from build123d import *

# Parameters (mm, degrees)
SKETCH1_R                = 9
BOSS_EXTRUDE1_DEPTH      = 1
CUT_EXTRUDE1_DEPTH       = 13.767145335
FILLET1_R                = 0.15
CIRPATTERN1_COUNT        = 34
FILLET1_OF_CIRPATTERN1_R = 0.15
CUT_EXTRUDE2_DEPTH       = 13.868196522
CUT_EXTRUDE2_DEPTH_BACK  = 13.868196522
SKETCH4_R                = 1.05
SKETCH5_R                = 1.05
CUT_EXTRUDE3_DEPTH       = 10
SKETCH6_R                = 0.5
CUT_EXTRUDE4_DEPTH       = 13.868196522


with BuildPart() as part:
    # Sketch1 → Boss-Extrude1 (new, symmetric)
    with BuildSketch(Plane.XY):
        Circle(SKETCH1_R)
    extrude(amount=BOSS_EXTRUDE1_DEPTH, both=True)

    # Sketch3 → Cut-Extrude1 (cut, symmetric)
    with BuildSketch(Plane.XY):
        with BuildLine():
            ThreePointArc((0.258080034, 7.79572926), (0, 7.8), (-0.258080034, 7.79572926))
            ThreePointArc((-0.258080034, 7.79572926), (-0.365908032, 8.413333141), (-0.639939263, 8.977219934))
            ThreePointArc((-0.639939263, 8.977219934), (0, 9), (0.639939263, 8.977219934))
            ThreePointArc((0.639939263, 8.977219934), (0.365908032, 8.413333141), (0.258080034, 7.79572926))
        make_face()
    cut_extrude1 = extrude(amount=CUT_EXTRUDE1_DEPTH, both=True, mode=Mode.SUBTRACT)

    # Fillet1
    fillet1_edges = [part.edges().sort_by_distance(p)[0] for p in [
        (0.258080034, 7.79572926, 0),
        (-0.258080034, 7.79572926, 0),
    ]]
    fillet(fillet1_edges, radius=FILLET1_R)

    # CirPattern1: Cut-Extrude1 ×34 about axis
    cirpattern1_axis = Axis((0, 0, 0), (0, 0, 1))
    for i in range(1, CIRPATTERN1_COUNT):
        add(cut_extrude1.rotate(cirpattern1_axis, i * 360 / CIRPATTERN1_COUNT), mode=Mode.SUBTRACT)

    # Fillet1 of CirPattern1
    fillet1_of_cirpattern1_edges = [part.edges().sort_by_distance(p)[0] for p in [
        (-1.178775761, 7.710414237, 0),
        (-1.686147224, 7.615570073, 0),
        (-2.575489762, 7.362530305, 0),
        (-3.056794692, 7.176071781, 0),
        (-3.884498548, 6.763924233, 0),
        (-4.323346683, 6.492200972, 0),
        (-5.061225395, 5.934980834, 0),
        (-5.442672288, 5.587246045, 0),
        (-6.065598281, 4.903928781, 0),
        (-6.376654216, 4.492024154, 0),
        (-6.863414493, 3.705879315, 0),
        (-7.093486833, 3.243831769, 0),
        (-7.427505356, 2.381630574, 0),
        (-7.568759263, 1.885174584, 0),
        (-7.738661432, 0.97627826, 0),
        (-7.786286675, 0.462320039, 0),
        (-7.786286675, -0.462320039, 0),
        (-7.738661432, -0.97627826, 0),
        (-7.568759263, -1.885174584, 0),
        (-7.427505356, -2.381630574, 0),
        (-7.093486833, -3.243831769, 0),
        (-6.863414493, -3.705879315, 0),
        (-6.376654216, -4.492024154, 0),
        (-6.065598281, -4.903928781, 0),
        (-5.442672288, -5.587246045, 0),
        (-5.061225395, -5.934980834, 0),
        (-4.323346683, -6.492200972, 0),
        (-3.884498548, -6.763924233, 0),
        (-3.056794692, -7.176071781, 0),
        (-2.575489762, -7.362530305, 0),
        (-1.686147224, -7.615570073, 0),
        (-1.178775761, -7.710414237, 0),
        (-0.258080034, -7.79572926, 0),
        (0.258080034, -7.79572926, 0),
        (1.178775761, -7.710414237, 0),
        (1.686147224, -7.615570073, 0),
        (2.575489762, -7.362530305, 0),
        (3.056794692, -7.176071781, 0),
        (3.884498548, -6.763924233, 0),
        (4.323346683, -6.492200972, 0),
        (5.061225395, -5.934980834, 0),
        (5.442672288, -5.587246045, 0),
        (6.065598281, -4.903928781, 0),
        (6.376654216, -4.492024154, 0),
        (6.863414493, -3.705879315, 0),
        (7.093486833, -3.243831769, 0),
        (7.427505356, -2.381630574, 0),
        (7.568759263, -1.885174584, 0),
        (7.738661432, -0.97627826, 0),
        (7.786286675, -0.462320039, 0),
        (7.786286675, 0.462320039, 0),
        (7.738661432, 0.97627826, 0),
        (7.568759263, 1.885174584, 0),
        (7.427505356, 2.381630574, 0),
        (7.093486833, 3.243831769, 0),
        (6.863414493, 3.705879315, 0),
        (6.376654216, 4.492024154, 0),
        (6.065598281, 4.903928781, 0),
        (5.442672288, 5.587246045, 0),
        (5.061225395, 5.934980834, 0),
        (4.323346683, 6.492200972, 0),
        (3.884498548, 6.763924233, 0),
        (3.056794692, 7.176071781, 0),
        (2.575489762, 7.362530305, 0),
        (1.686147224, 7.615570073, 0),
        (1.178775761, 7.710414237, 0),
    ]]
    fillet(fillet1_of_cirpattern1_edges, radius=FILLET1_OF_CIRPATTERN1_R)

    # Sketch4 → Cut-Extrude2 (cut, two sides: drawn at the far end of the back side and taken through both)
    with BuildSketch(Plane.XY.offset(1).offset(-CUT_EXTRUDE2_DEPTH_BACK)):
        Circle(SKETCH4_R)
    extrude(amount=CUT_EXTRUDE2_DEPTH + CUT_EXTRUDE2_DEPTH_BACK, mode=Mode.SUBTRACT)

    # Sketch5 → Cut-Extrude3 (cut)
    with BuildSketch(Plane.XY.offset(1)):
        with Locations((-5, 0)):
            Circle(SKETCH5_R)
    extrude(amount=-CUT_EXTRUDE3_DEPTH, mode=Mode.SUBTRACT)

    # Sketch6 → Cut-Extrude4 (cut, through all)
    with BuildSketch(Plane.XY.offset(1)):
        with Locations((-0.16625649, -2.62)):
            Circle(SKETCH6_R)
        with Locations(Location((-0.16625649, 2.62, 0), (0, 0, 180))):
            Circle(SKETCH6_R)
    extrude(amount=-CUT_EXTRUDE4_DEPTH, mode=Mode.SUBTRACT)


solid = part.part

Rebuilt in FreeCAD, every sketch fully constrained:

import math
import FreeCAD as App
import Part
import Sketcher

V = App.Vector


def edges_at(feature, points):
    """Names of the edges that pass closest to the given points."""
    edges = feature.Shape.Edges
    near = lambda p: min(range(len(edges)), key=lambda i: edges[i].distToShape(Part.Vertex(*p))[0])
    return sorted({f"Edge{near(p) + 1}" for p in points})

doc = App.newDocument("Part")
body = doc.addObject("PartDesign::Body", "Body")

sketch1 = body.newObject("Sketcher::SketchObject", "Sketch")
sketch1.AttachmentSupport = (doc.getObject("XY_Plane"), [""])
sketch1.MapMode = "FlatFace"
sketch1.addGeometry(Part.Circle(V(0, 0, 0), V(0, 0, 1), 9), False)
sketch1.addConstraint([
    Sketcher.Constraint("Coincident", 0, 3, -1, 1),
    Sketcher.Constraint("Diameter", 0, 18.0),
])
pad1 = body.newObject("PartDesign::Pad", "Pad")
pad1.Profile = sketch1
pad1.Length = 2
pad1.Midplane = True

sketch2 = body.newObject("Sketcher::SketchObject", "Sketch001")
sketch2.AttachmentSupport = (doc.getObject("XY_Plane"), [""])
sketch2.MapMode = "FlatFace"
sketch2.addGeometry([
    Part.ArcOfCircle(Part.Circle(V(0, 0, 0), V(0, 0, 1), 7.8), math.radians(88.1), math.radians(91.9)),
    Part.ArcOfCircle(Part.Circle(V(2.5, 7.7, 0), V(0, 0, 1), 2.3), math.radians(146), math.radians(178)),
    Part.ArcOfCircle(Part.Circle(V(0, 0, 0), V(0, 0, 1), 9), math.radians(85.92), math.radians(94.08)),
    Part.ArcOfCircle(Part.Circle(V(-2.5, 7.7, 0), V(0, 0, 1), 2.3), math.radians(2), math.radians(34)),
], False)
sketch2.addConstraint([
    Sketcher.Constraint("Coincident", 0, 1, 1, 2),
    Sketcher.Constraint("Coincident", 1, 1, 2, 1),
    Sketcher.Constraint("Coincident", 2, 2, 3, 2),
    Sketcher.Constraint("Coincident", 3, 1, 0, 2),
    Sketcher.Constraint("Coincident", 0, 3, -1, 1),
    Sketcher.Constraint("Coincident", 2, 3, -1, 1),
    Sketcher.Constraint("Equal", 1, 3),
    Sketcher.Constraint("Symmetric", 1, 3, 3, 3, -2),
    Sketcher.Constraint("Radius", 2, 9.0),
    Sketcher.Constraint("Radius", 0, 7.8),
    Sketcher.Constraint("Radius", 1, 2.25033),
    Sketcher.Constraint("DistanceX", -1, 1, 0, 1, 0.25808),
    Sketcher.Constraint("DistanceX", -1, 1, 1, 1, 0.639939),
])
pocket1 = body.newObject("PartDesign::Pocket", "Pocket")
pocket1.Profile = sketch2
pocket1.Length = 27.534291
pocket1.Midplane = True
doc.recompute()

fillet = body.newObject("PartDesign::Fillet", "Fillet")
fillet.Base = (pocket1, edges_at(pocket1, [(0.258, 7.796, 0), (-0.258, 7.796, 0)]))
fillet.Radius = 0.15
doc.recompute()

polarpattern = body.newObject("PartDesign::PolarPattern", "PolarPattern")
polarpattern.Originals = [pocket1]
polarpattern.Axis = (doc.getObject("Z_Axis"), [""])
polarpattern.Angle = 360
polarpattern.Occurrences = 34
body.Tip = polarpattern
doc.recompute()

fillet2 = body.newObject("PartDesign::Fillet", "Fillet001")
fillet2.Base = (polarpattern, edges_at(polarpattern, [
    (-1.179, 7.71, 0),
    (-1.686, 7.616, 0),
    (-2.575, 7.363, 0),
    (-3.057, 7.176, 0),
    (-3.884, 6.764, 0),
    (-4.323, 6.492, 0),
    (-5.061, 5.935, 0),
    (-5.443, 5.587, 0),
    (-6.066, 4.904, 0),
    (-6.377, 4.492, 0),
    (-6.863, 3.706, 0),
    (-7.093, 3.244, 0),
    (-7.428, 2.382, 0),
    (-7.569, 1.885, 0),
    (-7.739, 0.976, 0),
    (-7.786, 0.462, 0),
    (-7.786, -0.462, 0),
    (-7.739, -0.976, 0),
    (-7.569, -1.885, 0),
    (-7.428, -2.382, 0),
    (-7.093, -3.244, 0),
    (-6.863, -3.706, 0),
    (-6.377, -4.492, 0),
    (-6.066, -4.904, 0),
    (-5.443, -5.587, 0),
    (-5.061, -5.935, 0),
    (-4.323, -6.492, 0),
    (-3.884, -6.764, 0),
    (-3.057, -7.176, 0),
    (-2.575, -7.363, 0),
    (-1.686, -7.616, 0),
    (-1.179, -7.71, 0),
    (-0.258, -7.796, 0),
    (0.258, -7.796, 0),
    (1.179, -7.71, 0),
    (1.686, -7.616, 0),
    (2.575, -7.363, 0),
    (3.057, -7.176, 0),
    (3.884, -6.764, 0),
    (4.323, -6.492, 0),
    (5.061, -5.935, 0),
    (5.443, -5.587, 0),
    (6.066, -4.904, 0),
    (6.377, -4.492, 0),
    (6.863, -3.706, 0),
    (7.093, -3.244, 0),
    (7.428, -2.382, 0),
    (7.569, -1.885, 0),
    (7.739, -0.976, 0),
    (7.786, -0.462, 0),
    (7.786, 0.462, 0),
    (7.739, 0.976, 0),
    (7.569, 1.885, 0),
    (7.428, 2.382, 0),
    (7.093, 3.244, 0),
    (6.863, 3.706, 0),
    (6.377, 4.492, 0),
    (6.066, 4.904, 0),
    (5.443, 5.587, 0),
    (5.061, 5.935, 0),
    (4.323, 6.492, 0),
    (3.884, 6.764, 0),
    (3.057, 7.176, 0),
    (2.575, 7.363, 0),
    (1.686, 7.616, 0),
    (1.179, 7.71, 0),
]))
fillet2.Radius = 0.15

sketch3 = body.newObject("Sketcher::SketchObject", "Sketch002")
sketch3.AttachmentSupport = (doc.getObject("XY_Plane"), [""])
sketch3.MapMode = "FlatFace"
sketch3.AttachmentOffset = App.Placement(V(0, 0, 1), App.Rotation())
sketch3.addGeometry(Part.Circle(V(0, 0, 0), V(0, 0, 1), 1.1), False)
sketch3.addConstraint([
    Sketcher.Constraint("Coincident", 0, 3, -1, 1),
    Sketcher.Constraint("Diameter", 0, 2.1),
])
pocket2 = body.newObject("PartDesign::Pocket", "Pocket001")
pocket2.Profile = sketch3
pocket2.Type = "ThroughAll"
pocket2.Midplane = True

sketch4 = body.newObject("Sketcher::SketchObject", "Sketch003")
sketch4.AttachmentSupport = (doc.getObject("XY_Plane"), [""])
sketch4.MapMode = "FlatFace"
sketch4.AttachmentOffset = App.Placement(V(0, 0, 1), App.Rotation())
sketch4.addGeometry(Part.Circle(V(-5, 0, 0), V(0, 0, 1), 1.1), False)
sketch4.addConstraint([
    Sketcher.Constraint("PointOnObject", 0, 3, -1),
    Sketcher.Constraint("Diameter", 0, 2.1),
    Sketcher.Constraint("DistanceX", 0, 3, -1, 1, 5.0),
])
pocket3 = body.newObject("PartDesign::Pocket", "Pocket002")
pocket3.Profile = sketch4
pocket3.Length = 10

sketch5 = body.newObject("Sketcher::SketchObject", "Sketch004")
sketch5.AttachmentSupport = (doc.getObject("XY_Plane"), [""])
sketch5.MapMode = "FlatFace"
sketch5.AttachmentOffset = App.Placement(V(0, 0, 1), App.Rotation())
sketch5.addGeometry([
    Part.Circle(V(-0.2, -2.6, 0), V(0, 0, 1), 0.5),
    Part.Circle(V(-0.2, 2.6, 0), V(0, 0, 1), 0.5),
], False)
sketch5.addConstraint([
    Sketcher.Constraint("Equal", 0, 1),
    Sketcher.Constraint("Symmetric", 0, 3, 1, 3, -1),
    Sketcher.Constraint("Diameter", 0, 1.0),
    Sketcher.Constraint("DistanceY", 0, 3, -1, 1, 2.62),
    Sketcher.Constraint("DistanceX", 0, 3, -1, 1, 0.166256),
])
pocket4 = body.newObject("PartDesign::Pocket", "Pocket003")
pocket4.Profile = sketch5
pocket4.Type = "ThroughAll"

doc.recompute()
